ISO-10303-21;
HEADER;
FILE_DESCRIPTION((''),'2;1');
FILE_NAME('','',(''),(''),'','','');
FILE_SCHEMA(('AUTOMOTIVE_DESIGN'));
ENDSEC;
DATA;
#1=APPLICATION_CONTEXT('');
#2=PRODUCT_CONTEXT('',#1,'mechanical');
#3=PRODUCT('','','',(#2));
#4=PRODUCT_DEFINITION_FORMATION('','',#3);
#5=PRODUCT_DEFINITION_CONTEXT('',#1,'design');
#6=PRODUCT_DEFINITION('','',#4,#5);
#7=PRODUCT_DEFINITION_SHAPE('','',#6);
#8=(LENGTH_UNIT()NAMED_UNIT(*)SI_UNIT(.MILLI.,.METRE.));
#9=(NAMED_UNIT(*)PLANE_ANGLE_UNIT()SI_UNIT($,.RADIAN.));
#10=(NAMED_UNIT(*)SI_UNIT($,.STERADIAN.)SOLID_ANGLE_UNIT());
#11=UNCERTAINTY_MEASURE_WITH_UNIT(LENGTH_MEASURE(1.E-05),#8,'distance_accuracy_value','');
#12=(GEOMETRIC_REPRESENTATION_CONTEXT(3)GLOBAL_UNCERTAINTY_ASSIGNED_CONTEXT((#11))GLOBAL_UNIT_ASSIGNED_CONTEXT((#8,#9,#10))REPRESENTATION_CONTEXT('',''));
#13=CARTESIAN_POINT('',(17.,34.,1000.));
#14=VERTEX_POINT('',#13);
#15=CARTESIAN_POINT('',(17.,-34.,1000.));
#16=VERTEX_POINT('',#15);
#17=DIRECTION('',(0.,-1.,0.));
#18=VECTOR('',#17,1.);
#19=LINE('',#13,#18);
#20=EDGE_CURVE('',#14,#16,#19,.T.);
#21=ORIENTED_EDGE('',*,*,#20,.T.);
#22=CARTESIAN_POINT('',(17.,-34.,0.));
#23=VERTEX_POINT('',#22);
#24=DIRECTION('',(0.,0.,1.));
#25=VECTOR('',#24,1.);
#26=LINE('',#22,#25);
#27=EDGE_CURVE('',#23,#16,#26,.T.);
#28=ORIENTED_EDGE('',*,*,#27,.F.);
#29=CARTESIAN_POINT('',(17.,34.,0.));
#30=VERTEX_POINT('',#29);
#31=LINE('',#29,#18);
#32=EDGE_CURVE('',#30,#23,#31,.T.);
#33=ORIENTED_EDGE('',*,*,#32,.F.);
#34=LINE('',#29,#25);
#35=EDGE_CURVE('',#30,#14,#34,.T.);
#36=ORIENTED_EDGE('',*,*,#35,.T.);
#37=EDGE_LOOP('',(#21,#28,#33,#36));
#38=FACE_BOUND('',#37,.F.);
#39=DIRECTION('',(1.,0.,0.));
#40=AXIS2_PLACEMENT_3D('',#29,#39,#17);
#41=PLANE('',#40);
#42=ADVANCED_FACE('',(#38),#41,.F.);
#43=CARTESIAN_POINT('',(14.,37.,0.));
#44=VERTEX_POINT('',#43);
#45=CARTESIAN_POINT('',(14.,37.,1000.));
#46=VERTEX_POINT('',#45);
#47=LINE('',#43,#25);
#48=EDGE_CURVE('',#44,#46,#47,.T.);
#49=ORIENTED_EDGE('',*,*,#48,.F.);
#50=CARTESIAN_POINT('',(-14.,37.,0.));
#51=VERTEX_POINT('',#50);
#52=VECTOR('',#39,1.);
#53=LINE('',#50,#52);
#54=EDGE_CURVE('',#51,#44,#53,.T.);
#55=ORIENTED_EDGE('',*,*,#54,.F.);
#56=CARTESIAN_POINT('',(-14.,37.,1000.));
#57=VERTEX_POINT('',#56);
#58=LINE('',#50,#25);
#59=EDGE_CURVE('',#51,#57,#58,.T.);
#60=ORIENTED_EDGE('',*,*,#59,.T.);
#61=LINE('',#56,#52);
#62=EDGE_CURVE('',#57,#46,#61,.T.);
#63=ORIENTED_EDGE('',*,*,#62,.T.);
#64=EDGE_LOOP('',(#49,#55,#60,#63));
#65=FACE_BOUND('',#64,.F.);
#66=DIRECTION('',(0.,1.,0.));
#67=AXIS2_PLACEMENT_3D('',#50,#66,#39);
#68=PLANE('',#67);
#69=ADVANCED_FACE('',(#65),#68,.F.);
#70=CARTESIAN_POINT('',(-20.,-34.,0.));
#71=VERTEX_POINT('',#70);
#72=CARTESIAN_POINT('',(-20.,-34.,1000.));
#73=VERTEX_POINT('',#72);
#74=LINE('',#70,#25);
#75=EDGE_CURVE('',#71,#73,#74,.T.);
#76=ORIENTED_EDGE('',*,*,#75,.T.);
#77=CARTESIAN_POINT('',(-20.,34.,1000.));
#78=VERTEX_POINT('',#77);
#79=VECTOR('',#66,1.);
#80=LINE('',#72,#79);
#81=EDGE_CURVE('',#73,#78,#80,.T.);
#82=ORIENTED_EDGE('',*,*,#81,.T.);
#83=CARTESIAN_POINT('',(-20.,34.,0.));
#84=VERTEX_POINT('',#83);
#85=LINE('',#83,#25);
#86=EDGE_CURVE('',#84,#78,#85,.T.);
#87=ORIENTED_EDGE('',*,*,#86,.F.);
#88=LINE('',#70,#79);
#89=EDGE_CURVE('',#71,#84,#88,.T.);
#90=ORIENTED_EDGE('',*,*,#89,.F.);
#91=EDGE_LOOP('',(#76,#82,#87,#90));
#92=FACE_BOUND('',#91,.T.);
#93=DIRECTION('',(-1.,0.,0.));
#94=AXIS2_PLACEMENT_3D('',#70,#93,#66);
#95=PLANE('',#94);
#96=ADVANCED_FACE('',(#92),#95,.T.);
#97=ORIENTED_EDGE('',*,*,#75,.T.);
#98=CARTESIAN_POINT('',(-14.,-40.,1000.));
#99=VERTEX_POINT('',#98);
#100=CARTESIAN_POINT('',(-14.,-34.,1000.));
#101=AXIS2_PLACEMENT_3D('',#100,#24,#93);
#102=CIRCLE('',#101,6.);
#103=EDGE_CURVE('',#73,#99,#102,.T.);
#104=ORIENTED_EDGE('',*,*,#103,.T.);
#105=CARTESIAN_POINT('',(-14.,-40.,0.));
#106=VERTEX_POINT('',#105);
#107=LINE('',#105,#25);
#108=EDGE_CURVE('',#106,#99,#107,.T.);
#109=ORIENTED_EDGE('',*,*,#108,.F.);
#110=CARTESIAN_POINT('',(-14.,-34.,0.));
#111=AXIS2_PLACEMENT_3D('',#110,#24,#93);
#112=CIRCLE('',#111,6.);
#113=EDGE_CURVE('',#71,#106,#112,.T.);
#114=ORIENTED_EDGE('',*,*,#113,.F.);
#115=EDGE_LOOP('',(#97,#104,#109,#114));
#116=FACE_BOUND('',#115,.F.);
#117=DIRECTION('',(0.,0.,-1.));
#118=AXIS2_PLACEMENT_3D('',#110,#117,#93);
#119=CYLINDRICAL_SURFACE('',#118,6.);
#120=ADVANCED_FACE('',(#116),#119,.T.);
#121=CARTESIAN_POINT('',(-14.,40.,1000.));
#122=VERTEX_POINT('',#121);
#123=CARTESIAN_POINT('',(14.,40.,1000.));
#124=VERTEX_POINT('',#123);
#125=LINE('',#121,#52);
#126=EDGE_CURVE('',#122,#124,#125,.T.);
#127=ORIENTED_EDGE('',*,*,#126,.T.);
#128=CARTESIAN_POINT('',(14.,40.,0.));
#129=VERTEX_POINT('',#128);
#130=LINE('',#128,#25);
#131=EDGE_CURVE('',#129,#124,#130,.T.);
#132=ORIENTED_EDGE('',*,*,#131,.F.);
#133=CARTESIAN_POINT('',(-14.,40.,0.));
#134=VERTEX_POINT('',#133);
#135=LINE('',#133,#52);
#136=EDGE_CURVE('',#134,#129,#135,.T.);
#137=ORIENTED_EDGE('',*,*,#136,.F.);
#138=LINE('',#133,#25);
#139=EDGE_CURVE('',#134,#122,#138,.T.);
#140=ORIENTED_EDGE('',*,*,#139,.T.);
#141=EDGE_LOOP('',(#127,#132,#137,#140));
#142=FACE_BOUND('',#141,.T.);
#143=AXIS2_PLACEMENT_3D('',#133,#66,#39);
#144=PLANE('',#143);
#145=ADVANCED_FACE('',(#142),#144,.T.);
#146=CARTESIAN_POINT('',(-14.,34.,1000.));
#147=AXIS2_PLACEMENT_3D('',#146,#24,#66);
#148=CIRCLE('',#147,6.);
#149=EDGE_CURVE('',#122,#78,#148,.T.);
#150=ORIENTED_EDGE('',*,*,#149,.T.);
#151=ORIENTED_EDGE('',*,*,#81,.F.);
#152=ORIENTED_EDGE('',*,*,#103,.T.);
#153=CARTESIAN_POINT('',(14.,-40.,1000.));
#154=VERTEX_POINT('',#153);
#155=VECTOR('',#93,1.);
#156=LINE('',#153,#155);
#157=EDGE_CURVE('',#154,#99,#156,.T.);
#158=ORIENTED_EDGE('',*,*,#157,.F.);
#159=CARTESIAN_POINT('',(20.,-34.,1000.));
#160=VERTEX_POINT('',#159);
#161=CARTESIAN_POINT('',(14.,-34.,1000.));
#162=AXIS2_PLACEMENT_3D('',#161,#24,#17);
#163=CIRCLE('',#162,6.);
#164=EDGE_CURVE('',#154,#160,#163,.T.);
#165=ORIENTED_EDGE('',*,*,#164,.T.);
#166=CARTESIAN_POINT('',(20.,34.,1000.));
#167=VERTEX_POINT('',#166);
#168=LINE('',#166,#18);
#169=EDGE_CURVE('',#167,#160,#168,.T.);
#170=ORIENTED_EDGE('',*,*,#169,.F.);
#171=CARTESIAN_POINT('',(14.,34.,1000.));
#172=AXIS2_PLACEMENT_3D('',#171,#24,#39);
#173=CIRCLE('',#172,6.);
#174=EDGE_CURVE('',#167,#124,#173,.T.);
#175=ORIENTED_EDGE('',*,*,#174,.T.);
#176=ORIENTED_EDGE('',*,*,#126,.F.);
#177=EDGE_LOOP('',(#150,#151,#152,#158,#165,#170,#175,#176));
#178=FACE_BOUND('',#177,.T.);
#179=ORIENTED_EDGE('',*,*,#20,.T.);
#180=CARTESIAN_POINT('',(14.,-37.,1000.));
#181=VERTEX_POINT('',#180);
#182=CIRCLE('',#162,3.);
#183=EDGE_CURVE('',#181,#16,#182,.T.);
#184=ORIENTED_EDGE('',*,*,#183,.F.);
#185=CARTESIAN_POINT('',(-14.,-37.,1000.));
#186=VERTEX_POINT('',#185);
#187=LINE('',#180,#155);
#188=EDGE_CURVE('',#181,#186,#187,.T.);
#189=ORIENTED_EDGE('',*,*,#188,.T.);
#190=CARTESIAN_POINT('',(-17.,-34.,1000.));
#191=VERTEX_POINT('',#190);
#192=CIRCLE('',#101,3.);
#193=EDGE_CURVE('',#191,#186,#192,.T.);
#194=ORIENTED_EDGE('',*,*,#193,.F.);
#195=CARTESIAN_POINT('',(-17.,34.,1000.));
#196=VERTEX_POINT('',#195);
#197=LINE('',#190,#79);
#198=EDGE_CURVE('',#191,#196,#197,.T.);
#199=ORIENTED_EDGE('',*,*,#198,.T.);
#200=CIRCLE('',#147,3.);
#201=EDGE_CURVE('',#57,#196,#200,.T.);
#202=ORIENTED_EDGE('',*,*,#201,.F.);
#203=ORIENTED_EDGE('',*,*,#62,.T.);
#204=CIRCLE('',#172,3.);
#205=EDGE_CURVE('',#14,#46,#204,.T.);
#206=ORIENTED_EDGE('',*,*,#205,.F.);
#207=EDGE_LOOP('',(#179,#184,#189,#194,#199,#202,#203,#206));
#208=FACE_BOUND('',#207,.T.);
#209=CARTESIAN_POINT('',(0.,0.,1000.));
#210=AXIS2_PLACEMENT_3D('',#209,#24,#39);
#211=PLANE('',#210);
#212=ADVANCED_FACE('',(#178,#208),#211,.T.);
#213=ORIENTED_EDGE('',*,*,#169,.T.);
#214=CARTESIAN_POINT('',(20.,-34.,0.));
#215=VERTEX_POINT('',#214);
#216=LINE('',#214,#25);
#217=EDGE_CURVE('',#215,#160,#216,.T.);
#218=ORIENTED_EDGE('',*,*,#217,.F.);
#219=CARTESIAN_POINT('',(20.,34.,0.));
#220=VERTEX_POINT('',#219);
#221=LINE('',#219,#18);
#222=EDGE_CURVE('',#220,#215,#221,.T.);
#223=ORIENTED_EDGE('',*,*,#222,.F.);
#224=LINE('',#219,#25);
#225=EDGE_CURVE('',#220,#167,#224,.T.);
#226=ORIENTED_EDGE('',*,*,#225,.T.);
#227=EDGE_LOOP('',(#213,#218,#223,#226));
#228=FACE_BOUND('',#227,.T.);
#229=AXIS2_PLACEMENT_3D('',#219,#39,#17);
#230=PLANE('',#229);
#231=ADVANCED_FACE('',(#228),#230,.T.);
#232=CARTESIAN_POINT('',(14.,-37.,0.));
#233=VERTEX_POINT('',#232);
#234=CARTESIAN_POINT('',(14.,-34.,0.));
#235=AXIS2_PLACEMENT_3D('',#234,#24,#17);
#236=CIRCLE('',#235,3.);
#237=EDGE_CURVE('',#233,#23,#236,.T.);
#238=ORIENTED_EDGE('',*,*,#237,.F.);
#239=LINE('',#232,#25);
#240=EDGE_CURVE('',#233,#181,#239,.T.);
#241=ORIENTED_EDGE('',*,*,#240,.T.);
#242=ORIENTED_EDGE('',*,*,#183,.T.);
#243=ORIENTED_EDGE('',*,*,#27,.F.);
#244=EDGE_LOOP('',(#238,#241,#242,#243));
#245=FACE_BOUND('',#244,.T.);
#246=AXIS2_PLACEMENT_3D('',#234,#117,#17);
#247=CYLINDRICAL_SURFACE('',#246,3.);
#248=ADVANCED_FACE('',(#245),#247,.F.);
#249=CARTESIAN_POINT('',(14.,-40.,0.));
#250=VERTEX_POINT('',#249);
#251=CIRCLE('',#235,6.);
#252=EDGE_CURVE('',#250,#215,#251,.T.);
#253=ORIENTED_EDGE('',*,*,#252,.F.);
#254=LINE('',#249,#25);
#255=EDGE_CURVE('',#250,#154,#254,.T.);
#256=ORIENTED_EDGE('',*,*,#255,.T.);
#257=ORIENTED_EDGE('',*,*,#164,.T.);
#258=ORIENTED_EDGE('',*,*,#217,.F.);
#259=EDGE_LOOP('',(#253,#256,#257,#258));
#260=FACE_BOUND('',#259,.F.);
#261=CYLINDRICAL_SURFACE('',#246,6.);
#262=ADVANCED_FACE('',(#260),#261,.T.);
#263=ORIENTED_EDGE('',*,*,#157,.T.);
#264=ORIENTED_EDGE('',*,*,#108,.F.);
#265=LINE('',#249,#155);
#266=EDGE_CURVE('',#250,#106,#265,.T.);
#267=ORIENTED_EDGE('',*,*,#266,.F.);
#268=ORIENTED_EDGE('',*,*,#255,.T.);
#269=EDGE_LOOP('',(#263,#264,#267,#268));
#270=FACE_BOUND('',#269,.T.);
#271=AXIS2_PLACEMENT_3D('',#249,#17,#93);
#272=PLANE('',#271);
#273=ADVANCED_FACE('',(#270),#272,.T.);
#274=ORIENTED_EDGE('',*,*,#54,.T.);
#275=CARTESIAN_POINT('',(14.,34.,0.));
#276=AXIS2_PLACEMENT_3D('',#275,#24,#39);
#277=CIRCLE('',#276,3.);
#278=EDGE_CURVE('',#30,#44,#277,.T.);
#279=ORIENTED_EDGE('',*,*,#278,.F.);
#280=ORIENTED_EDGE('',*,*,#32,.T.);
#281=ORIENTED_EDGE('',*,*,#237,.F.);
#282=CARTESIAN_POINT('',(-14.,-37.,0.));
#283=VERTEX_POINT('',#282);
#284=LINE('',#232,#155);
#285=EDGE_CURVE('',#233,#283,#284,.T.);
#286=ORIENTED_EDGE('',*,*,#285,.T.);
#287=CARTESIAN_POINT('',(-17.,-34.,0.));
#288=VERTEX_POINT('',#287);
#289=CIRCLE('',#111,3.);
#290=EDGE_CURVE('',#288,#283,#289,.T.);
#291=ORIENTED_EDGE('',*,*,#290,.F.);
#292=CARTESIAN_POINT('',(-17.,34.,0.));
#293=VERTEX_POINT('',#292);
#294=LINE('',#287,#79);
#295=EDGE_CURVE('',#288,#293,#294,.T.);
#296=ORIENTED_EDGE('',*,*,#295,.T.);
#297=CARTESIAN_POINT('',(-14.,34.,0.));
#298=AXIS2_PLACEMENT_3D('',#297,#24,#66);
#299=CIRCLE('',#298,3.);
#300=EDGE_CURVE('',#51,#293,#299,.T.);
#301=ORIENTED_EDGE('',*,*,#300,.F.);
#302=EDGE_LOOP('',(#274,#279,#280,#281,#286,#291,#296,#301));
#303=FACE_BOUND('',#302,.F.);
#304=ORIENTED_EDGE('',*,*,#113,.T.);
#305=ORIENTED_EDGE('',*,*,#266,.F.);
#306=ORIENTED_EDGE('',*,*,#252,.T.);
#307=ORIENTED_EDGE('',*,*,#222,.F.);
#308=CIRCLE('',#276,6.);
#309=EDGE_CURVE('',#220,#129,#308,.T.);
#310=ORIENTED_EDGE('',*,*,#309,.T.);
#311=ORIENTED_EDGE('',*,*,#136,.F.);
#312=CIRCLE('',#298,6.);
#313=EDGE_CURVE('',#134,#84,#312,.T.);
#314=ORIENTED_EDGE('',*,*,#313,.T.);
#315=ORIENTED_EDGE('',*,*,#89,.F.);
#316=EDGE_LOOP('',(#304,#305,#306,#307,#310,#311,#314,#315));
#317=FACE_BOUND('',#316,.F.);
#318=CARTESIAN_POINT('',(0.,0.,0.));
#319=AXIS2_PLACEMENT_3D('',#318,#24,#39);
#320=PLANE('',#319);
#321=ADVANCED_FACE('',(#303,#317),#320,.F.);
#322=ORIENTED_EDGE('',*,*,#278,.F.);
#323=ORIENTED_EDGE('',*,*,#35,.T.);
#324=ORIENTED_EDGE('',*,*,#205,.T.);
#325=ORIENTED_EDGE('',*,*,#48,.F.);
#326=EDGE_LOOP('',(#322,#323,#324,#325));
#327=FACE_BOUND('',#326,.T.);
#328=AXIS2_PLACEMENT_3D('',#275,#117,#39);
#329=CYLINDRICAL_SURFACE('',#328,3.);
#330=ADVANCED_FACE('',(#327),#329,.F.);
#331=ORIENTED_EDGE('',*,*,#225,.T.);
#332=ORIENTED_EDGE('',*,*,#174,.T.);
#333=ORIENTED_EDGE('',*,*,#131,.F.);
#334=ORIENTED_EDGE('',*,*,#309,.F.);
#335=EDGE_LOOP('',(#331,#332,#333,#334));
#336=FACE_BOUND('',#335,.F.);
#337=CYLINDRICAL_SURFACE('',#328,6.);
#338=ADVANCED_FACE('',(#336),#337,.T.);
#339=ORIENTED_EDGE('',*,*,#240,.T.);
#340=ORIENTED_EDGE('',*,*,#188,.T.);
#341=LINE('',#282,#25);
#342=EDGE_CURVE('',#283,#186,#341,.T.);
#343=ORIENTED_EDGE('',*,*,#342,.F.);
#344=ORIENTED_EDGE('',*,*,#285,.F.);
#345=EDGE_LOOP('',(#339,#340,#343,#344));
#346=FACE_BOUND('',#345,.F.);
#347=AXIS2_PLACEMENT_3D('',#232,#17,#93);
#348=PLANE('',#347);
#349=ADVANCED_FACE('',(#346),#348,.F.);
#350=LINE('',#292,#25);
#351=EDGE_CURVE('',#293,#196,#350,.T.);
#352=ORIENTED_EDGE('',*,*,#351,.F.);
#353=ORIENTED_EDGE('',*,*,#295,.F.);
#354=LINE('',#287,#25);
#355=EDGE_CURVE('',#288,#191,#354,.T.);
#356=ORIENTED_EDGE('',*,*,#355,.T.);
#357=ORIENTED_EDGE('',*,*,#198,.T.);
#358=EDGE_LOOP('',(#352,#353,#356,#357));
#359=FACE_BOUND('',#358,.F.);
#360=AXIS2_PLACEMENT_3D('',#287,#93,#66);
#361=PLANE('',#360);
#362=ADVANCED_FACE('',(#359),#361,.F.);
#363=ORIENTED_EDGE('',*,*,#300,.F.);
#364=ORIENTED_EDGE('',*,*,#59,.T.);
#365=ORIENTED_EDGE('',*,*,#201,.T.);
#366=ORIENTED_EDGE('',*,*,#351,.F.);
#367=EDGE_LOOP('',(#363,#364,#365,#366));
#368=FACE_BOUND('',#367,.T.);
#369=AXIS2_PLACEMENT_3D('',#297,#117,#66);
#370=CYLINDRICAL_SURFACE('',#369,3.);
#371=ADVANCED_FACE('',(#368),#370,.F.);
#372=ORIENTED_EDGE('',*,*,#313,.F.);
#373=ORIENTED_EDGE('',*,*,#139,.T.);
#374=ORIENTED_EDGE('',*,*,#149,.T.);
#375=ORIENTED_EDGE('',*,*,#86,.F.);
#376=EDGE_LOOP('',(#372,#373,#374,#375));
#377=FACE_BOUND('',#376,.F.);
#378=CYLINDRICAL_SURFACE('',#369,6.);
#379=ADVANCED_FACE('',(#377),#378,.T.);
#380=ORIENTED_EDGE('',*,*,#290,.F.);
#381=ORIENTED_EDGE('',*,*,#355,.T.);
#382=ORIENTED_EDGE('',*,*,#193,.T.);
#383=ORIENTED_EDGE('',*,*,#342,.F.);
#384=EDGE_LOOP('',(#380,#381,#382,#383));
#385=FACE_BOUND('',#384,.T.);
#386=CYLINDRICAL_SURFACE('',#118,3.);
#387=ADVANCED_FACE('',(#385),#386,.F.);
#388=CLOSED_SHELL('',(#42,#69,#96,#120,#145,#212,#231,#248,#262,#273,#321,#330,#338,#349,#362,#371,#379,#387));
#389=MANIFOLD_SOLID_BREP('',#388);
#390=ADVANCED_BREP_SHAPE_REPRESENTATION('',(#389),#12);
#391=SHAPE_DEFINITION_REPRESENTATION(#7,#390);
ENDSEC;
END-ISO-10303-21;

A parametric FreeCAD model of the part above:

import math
import FreeCAD as App
import Part
import Sketcher
Q = App.Units.Quantity

doc = App.newDocument("Part")
body = doc.addObject("PartDesign::Body", "Body")

sketch1 = body.newObject("Sketcher::SketchObject", "Sketch")
sketch1.AttachmentSupport = (doc.getObject("XY_Plane"), [""])
sketch1.MapMode = "FlatFace"
sketch1.addGeometry([
    Part.LineSegment(App.Vector(-20, 34, 0), App.Vector(-20, -34, 0)),
    Part.ArcOfCircle(Part.Circle(App.Vector(-14, -34, 0), App.Vector(0, 0, 1), 6), math.radians(180), math.radians(270)),
    Part.LineSegment(App.Vector(-14, -40, 0), App.Vector(14, -40, 0)),
    Part.ArcOfCircle(Part.Circle(App.Vector(14, -34, 0), App.Vector(0, 0, 1), 6), math.radians(-90), math.radians(0)),
    Part.LineSegment(App.Vector(20, -34, 0), App.Vector(20, 34, 0)),
    Part.ArcOfCircle(Part.Circle(App.Vector(14, 34, 0), App.Vector(0, 0, 1), 6), math.radians(0), math.radians(90)),
    Part.LineSegment(App.Vector(14, 40, 0), App.Vector(-14, 40, 0)),
    Part.ArcOfCircle(Part.Circle(App.Vector(-14, 34, 0), App.Vector(0, 0, 1), 6), math.radians(90), math.radians(180)),
    Part.ArcOfCircle(Part.Circle(App.Vector(-14, 34, 0), App.Vector(0, 0, 1), 3), math.radians(90), math.radians(180)),
    Part.LineSegment(App.Vector(-14, 37, 0), App.Vector(14, 37, 0)),
    Part.ArcOfCircle(Part.Circle(App.Vector(14, 34, 0), App.Vector(0, 0, 1), 3), math.radians(0), math.radians(90)),
    Part.LineSegment(App.Vector(17, 34, 0), App.Vector(17, -34, 0)),
    Part.ArcOfCircle(Part.Circle(App.Vector(14, -34, 0), App.Vector(0, 0, 1), 3), math.radians(-90), math.radians(0)),
    Part.LineSegment(App.Vector(14, -37, 0), App.Vector(-14, -37, 0)),
    Part.ArcOfCircle(Part.Circle(App.Vector(-14, -34, 0), App.Vector(0, 0, 1), 3), math.radians(180), math.radians(270)),
    Part.LineSegment(App.Vector(-17, -34, 0), App.Vector(-17, 34, 0)),
], False)
sketch1.addConstraint([
    Sketcher.Constraint("Tangent", 0, 2, 1, 1),
    Sketcher.Constraint("Tangent", 1, 2, 2, 1),
    Sketcher.Constraint("Tangent", 2, 2, 3, 1),
    Sketcher.Constraint("Tangent", 3, 2, 4, 1),
    Sketcher.Constraint("Tangent", 4, 2, 5, 1),
    Sketcher.Constraint("Tangent", 5, 2, 6, 1),
    Sketcher.Constraint("Tangent", 6, 2, 7, 1),
    Sketcher.Constraint("Tangent", 7, 2, 0, 1),
    Sketcher.Constraint("Tangent", 8, 1, 9, 1),
    Sketcher.Constraint("Tangent", 9, 2, 10, 2),
    Sketcher.Constraint("Tangent", 10, 1, 11, 1),
    Sketcher.Constraint("Tangent", 11, 2, 12, 2),
    Sketcher.Constraint("Tangent", 12, 1, 13, 1),
    Sketcher.Constraint("Tangent", 13, 2, 14, 2),
    Sketcher.Constraint("Tangent", 14, 1, 15, 1),
    Sketcher.Constraint("Tangent", 15, 2, 8, 2),
    Sketcher.Constraint("Vertical", 0),
    Sketcher.Constraint("Horizontal", 2),
    Sketcher.Constraint("Vertical", 4),
    Sketcher.Constraint("Horizontal", 6),
    Sketcher.Constraint("Horizontal", 9),
    Sketcher.Constraint("Vertical", 11),
    Sketcher.Constraint("Horizontal", 13),
    Sketcher.Constraint("Vertical", 15),
    Sketcher.Constraint("Coincident", 8, 3, 7, 3),
    Sketcher.Constraint("Coincident", 10, 3, 5, 3),
    Sketcher.Constraint("Coincident", 12, 3, 3, 3),
    Sketcher.Constraint("Equal", 1, 3),
    Sketcher.Constraint("Equal", 3, 5),
    Sketcher.Constraint("Equal", 5, 7),
    Sketcher.Constraint("Equal", 12, 14),
    Sketcher.Constraint("Symmetric", 1, 3, 5, 3, -1, 1),
    Sketcher.Constraint("Radius", 1, Q("6 mm")),
    Sketcher.Constraint("Radius", 8, Q("3 mm")),
    Sketcher.Constraint("DistanceX", 0, 2, -1, 1, Q("20 mm")),
    Sketcher.Constraint("DistanceY", 1, 2, -1, 1, Q("40 mm")),
])
pad1 = body.newObject("PartDesign::Pad", "Pad")
pad1.Profile = sketch1
pad1.Length = 1000

doc.recompute()
